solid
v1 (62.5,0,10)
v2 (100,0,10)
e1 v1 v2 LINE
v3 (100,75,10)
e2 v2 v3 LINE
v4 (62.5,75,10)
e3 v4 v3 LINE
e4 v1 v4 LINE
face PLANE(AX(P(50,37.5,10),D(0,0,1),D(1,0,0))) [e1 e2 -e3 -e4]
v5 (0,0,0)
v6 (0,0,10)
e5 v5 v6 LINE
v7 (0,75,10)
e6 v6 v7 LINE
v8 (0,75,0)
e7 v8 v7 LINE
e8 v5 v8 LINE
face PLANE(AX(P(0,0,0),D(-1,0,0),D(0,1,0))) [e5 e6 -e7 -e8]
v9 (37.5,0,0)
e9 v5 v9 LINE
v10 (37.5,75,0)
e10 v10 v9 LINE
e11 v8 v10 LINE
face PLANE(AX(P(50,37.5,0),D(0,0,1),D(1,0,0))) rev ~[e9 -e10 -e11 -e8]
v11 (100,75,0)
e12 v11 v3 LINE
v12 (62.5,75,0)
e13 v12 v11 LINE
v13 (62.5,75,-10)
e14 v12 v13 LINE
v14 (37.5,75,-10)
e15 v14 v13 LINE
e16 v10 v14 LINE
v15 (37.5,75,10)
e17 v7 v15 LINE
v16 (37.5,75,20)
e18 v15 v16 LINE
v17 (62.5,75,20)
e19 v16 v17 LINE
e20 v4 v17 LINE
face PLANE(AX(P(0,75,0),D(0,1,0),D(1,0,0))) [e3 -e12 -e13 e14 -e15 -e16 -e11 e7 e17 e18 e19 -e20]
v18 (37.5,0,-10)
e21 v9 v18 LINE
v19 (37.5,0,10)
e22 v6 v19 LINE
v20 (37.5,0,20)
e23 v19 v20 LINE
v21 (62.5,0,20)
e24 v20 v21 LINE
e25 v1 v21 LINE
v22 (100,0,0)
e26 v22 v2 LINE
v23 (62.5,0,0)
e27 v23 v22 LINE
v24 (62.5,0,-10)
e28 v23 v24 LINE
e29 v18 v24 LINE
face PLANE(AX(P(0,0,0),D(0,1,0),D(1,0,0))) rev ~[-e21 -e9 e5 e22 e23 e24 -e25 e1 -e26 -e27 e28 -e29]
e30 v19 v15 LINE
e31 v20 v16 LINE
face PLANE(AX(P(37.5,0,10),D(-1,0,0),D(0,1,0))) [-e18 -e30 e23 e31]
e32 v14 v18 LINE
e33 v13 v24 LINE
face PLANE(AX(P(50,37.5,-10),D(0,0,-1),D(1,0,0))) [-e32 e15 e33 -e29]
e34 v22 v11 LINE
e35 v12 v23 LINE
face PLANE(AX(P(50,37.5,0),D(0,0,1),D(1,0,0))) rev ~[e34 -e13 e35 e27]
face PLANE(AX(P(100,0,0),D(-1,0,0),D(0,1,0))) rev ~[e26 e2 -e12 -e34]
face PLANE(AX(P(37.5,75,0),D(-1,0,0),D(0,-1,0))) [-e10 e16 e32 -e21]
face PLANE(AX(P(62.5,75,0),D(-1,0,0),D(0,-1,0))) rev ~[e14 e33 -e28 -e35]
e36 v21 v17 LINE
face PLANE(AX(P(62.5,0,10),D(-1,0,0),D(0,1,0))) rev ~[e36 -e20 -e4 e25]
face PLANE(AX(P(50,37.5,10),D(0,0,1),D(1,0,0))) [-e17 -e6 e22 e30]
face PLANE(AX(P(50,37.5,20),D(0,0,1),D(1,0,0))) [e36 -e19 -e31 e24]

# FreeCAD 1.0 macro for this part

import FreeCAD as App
import Part
import Sketcher


def add_polygon(sketch, points):
    """Adds a closed chain of lines whose ends are joined by coincident constraints."""
    first, n = sketch.GeometryCount, len(points)
    for a, b in zip(points, points[1:] + points[:1]):
        sketch.addGeometry(Part.LineSegment(App.Vector(*a, 0), App.Vector(*b, 0)), False)
    for i in range(n):
        sketch.addConstraint(Sketcher.Constraint("Coincident", first + i, 2, first + (i + 1) % n, 1))

doc = App.newDocument("Part")
body = doc.addObject("PartDesign::Body", "Body")

sketch1 = body.newObject("Sketcher::SketchObject", "Sketch")
sketch1.AttachmentSupport = (doc.getObject("XY_Plane"), [""])
sketch1.MapMode = "FlatFace"
add_polygon(sketch1, [(0, 75), (0, 0), (100, 0), (100, 75)])
sketch1.addConstraint([
    Sketcher.Constraint("Vertical", 0),
    Sketcher.Constraint("Horizontal", 1),
    Sketcher.Constraint("Vertical", 2),
    Sketcher.Constraint("Horizontal", 3),
    Sketcher.Constraint("Coincident", 0, 2, -1, 1),
    Sketcher.Constraint("DistanceX", 1, 1, 1, 2, 100.0),
    Sketcher.Constraint("DistanceY", 0, 2, 0, 1, 75.0),
])
pad1 = body.newObject("PartDesign::Pad", "Pad")
pad1.Profile = sketch1
pad1.Length = 10

sketch2 = body.newObject("Sketcher::SketchObject", "Sketch001")
sketch2.AttachmentSupport = (doc.getObject("XY_Plane"), [""])
sketch2.MapMode = "FlatFace"
sketch2.AttachmentOffset = App.Placement(App.Vector(0, 0, 10), App.Rotation())
add_polygon(sketch2, [(38, 75), (38, 0), (62, 0), (62, 75)])
sketch2.addConstraint([
    Sketcher.Constraint("Vertical", 0),
    Sketcher.Constraint("Horizontal", 1),
    Sketcher.Constraint("Vertical", 2),
    Sketcher.Constraint("Horizontal", 3),
    Sketcher.Constraint("PointOnObject", 0, 2, -1),
    Sketcher.Constraint("DistanceX", 1, 1, 1, 2, 25.0),
    Sketcher.Constraint("DistanceY", 0, 2, 0, 1, 75.0),
    Sketcher.Constraint("DistanceX", -1, 1, 0, 2, 37.5),
])
pad2 = body.newObject("PartDesign::Pad", "Pad001")
pad2.Profile = sketch2
pad2.Length = 10

sketch3 = body.newObject("Sketcher::SketchObject", "Sketch002")
sketch3.AttachmentSupport = (doc.getObject("XY_Plane"), [""])
sketch3.MapMode = "FlatFace"
add_polygon(sketch3, [(38, 0), (38, 75), (62, 75), (62, 0)])
sketch3.addConstraint([
    Sketcher.Constraint("Vertical", 0),
    Sketcher.Constraint("Horizontal", 1),
    Sketcher.Constraint("Vertical", 2),
    Sketcher.Constraint("Horizontal", 3),
    Sketcher.Constraint("PointOnObject", 2, 2, -1),
    Sketcher.Constraint("DistanceX", 1, 1, 1, 2, 25.0),
    Sketcher.Constraint("DistanceY", 0, 1, 0, 2, 75.0),
    Sketcher.Constraint("DistanceX", -1, 1, 0, 2, 37.5),
])
pad3 = body.newObject("PartDesign::Pad", "Pad002")
pad3.Profile = sketch3
pad3.Length = 10
pad3.Reversed = True

doc.recompute()
